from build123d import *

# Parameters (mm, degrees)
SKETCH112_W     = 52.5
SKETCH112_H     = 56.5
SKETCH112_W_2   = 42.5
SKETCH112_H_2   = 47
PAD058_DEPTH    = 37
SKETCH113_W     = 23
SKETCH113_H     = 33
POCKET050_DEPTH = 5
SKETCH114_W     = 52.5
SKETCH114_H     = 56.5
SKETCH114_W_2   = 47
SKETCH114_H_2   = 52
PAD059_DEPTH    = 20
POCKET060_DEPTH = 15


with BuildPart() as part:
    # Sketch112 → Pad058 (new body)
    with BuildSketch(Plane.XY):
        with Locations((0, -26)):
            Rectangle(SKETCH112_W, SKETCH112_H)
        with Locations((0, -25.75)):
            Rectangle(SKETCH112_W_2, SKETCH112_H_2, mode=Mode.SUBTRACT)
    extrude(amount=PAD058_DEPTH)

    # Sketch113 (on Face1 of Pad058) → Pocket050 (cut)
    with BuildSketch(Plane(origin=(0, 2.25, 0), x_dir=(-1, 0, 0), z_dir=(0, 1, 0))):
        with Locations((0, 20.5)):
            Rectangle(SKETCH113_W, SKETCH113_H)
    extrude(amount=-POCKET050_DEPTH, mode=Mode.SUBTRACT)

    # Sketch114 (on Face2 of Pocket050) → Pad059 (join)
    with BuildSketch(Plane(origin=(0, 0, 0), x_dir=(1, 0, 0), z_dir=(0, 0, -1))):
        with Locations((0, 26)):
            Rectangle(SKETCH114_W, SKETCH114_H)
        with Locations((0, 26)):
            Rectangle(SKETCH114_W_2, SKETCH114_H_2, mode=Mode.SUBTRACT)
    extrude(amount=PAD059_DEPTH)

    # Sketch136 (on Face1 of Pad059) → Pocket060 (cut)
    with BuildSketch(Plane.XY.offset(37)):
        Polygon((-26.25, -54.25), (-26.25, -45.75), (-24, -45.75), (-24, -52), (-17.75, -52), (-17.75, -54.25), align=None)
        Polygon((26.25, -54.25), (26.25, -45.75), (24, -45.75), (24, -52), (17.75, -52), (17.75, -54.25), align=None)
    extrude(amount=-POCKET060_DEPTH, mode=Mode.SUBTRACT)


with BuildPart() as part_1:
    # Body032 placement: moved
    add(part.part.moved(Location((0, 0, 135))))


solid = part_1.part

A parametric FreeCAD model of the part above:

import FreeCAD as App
import Part
import Sketcher

V = App.Vector


def add_polygon(sketch, points):
    """Adds a closed chain of lines whose ends are joined by coincident constraints."""
    first, n = sketch.GeometryCount, len(points)
    for a, b in zip(points, points[1:] + points[:1]):
        sketch.addGeometry(Part.LineSegment(App.Vector(*a, 0), App.Vector(*b, 0)), False)
    for i in range(n):
        sketch.addConstraint(Sketcher.Constraint("Coincident", first + i, 2, first + (i + 1) % n, 1))

doc = App.newDocument("Part")
body = doc.addObject("PartDesign::Body", "Body")

sketch1 = body.newObject("Sketcher::SketchObject", "Sketch")
sketch1.AttachmentSupport = (doc.getObject("XY_Plane"), [""])
sketch1.MapMode = "FlatFace"
add_polygon(sketch1, [(-26, 2), (-26, -54), (26, -54), (26, 2)])
add_polygon(sketch1, [(21, -49), (-21, -49), (-21, -2), (21, -2)])
sketch1.addConstraint([
    Sketcher.Constraint("Vertical", 0),
    Sketcher.Constraint("Horizontal", 1),
    Sketcher.Constraint("Vertical", 2),
    Sketcher.Constraint("Horizontal", 3),
    Sketcher.Constraint("Horizontal", 4),
    Sketcher.Constraint("Vertical", 5),
    Sketcher.Constraint("Horizontal", 6),
    Sketcher.Constraint("Vertical", 7),
    Sketcher.Constraint("DistanceY", 5, 1, 5, 2, 47.0),
    Sketcher.Constraint("DistanceX", 1, 1, 1, 2, 52.5),
    Sketcher.Constraint("DistanceX", 4, 2, 4, 1, 42.5),
    Sketcher.Constraint("DistanceY", 0, 2, 0, 1, 56.5),
    Sketcher.Constraint("DistanceX", 0, 2, 4, 2, 5.0),
    Sketcher.Constraint("DistanceY", 0, 2, 4, 2, 5.0),
    Sketcher.Constraint("DistanceX", 0, 2, -1, 1, 26.25),
    Sketcher.Constraint("DistanceY", 0, 2, -1, 1, 54.25),
])
pad1 = body.newObject("PartDesign::Pad", "Pad")
pad1.Profile = sketch1
pad1.Length = 37

sketch2 = body.newObject("Sketcher::SketchObject", "Sketch001")
sketch2.AttachmentSupport = (doc.getObject("XZ_Plane"), [""])
sketch2.MapMode = "FlatFace"
sketch2.AttachmentOffset = App.Placement(V(0, 0, -2.25), App.Rotation())
add_polygon(sketch2, [(12, 37), (12, 4), (-12, 4), (-12, 37)])
sketch2.addConstraint([
    Sketcher.Constraint("Vertical", 0),
    Sketcher.Constraint("Horizontal", 1),
    Sketcher.Constraint("Vertical", 2),
    Sketcher.Constraint("Horizontal", 3),
    Sketcher.Constraint("DistanceX", 1, 2, 1, 1, 23.0),
    Sketcher.Constraint("DistanceY", 0, 2, 0, 1, 33.0),
    Sketcher.Constraint("DistanceY", -1, 1, 0, 2, 4.0),
    Sketcher.Constraint("DistanceX", -1, 1, 0, 2, 11.5),
])
pocket1 = body.newObject("PartDesign::Pocket", "Pocket")
pocket1.Profile = sketch2
pocket1.Length = 5
pocket1.Reversed = True

sketch3 = body.newObject("Sketcher::SketchObject", "Sketch002")
sketch3.AttachmentSupport = (doc.getObject("XY_Plane"), [""])
sketch3.MapMode = "FlatFace"
add_polygon(sketch3, [(-26, -54), (-26, 2), (26, 2), (26, -54)])
add_polygon(sketch3, [(24, 0), (-24, 0), (-24, -52), (24, -52)])
sketch3.addConstraint([
    Sketcher.Constraint("Vertical", 0),
    Sketcher.Constraint("Horizontal", 1),
    Sketcher.Constraint("Vertical", 2),
    Sketcher.Constraint("Horizontal", 3),
    Sketcher.Constraint("Horizontal", 4),
    Sketcher.Constraint("Vertical", 5),
    Sketcher.Constraint("Horizontal", 6),
    Sketcher.Constraint("Vertical", 7),
    Sketcher.Constraint("Symmetric", 4, 2, 7, 2, -1, 1),
    Sketcher.Constraint("DistanceX", 4, 2, 4, 1, 47.0),
    Sketcher.Constraint("DistanceY", 5, 2, 5, 1, 52.0),
    Sketcher.Constraint("DistanceX", 1, 1, 1, 2, 52.5),
    Sketcher.Constraint("DistanceY", 0, 1, 0, 2, 56.5),
    Sketcher.Constraint("DistanceX", 0, 2, -1, 1, 26.25),
    Sketcher.Constraint("DistanceY", -1, 1, 0, 2, 2.25),
])
pad2 = body.newObject("PartDesign::Pad", "Pad001")
pad2.Profile = sketch3
pad2.Length = 20
pad2.Reversed = True

sketch4 = body.newObject("Sketcher::SketchObject", "Sketch003")
sketch4.AttachmentSupport = (doc.getObject("XY_Plane"), [""])
sketch4.MapMode = "FlatFace"
sketch4.AttachmentOffset = App.Placement(V(0, 0, 37), App.Rotation())
add_polygon(sketch4, [(-26.2, -45.8), (-26.2, -54.2), (-17.8, -54.2), (-17.8, -52), (-24, -52), (-24, -45.8)])
add_polygon(sketch4, [(26.2, -54.2), (26.2, -45.8), (24, -45.8), (24, -52), (17.8, -52), (17.8, -54.2)])
sketch4.addConstraint([
    Sketcher.Constraint("Vertical", 0),
    Sketcher.Constraint("Horizontal", 1),
    Sketcher.Constraint("Vertical", 2),
    Sketcher.Constraint("Horizontal", 3),
    Sketcher.Constraint("Vertical", 4),
    Sketcher.Constraint("Horizontal", 5),
    Sketcher.Constraint("Vertical", 6),
    Sketcher.Constraint("Horizontal", 7),
    Sketcher.Constraint("Vertical", 8),
    Sketcher.Constraint("Horizontal", 9),
    Sketcher.Constraint("Vertical", 10),
    Sketcher.Constraint("Horizontal", 11),
    Sketcher.Constraint("Symmetric", 5, 2, 6, 2, -2),
    Sketcher.Constraint("Symmetric", 3, 2, 8, 2, -2),
    Sketcher.Constraint("Symmetric", 1, 2, 10, 2, -2),
    Sketcher.Constraint("Equal", 11, 0),
    Sketcher.Constraint("Equal", 7, 2),
    Sketcher.Constraint("DistanceX", 1, 1, 1, 2, 8.5),
    Sketcher.Constraint("DistanceY", 2, 2, -1, 1, 52.0),
    Sketcher.Constraint("DistanceX", 3, 2, -1, 1, 24.0),
    Sketcher.Constraint("DistanceX", 2, 2, 6, 2, 44.0),
])
pocket2 = body.newObject("PartDesign::Pocket", "Pocket001")
pocket2.Profile = sketch4
pocket2.Length = 15
body2 = doc.addObject("PartDesign::Body", "Body001")
doc.recompute()

body.Placement = App.Placement(V(0, 0, 135), App.Rotation(V(0, 0, 1), 0))
boolean = body2.newObject("PartDesign::Boolean", "Boolean")
boolean.Type = "Fuse"
boolean.addObjects([body])

doc.recompute()
